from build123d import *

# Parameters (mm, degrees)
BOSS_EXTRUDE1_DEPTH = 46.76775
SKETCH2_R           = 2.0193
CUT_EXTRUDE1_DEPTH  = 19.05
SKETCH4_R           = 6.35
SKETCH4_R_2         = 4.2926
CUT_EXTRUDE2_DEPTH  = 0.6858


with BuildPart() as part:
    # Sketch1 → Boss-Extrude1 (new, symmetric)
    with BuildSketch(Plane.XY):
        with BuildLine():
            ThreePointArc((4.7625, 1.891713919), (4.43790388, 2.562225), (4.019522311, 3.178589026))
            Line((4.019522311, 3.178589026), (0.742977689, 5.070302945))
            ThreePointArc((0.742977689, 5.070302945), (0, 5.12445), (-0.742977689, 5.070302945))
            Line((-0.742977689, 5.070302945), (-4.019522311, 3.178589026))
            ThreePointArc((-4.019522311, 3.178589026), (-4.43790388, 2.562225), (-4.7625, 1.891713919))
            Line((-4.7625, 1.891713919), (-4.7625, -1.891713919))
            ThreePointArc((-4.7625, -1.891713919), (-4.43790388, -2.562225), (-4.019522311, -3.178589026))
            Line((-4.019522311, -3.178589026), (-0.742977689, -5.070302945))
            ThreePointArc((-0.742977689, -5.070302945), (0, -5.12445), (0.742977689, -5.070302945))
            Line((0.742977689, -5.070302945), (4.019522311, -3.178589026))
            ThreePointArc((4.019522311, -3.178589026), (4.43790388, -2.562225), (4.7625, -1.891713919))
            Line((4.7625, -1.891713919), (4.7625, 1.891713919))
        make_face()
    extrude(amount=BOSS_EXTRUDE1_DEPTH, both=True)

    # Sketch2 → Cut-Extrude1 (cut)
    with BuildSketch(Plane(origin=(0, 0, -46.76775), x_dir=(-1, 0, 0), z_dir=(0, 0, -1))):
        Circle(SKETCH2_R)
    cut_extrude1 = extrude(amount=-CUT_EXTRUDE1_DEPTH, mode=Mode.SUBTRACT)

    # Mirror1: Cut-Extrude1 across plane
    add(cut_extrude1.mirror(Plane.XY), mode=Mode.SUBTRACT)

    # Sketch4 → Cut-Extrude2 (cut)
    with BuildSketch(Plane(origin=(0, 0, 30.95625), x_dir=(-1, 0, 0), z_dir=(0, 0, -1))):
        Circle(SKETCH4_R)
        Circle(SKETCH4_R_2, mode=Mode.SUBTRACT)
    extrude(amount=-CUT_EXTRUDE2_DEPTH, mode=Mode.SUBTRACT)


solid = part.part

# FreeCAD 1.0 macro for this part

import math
import FreeCAD as App
import Part
import Sketcher
from FreeCAD import Vector
Q = App.Units.Quantity

doc = App.newDocument("Part")
body = doc.addObject("PartDesign::Body", "Body")

# Sketch on XY plane
sketch1 = doc.addObject("Sketcher::SketchObject", "Sketch")
body.addObject(sketch1)
sketch1.AttachmentSupport = (doc.XY_Plane, [""])
sketch1.MapMode = "FlatFace"
sketch1.addGeometry(Part.ArcOfCircle(Part.Circle(Vector(0, 0, 0), Vector(0, 0, 1), 5.1), math.radians(21.66), math.radians(38.34)), False)
sketch1.addGeometry(Part.LineSegment(Vector(4, 3.2, 0), Vector(0.7, 5.1, 0)), False)
sketch1.addGeometry(Part.ArcOfCircle(Part.Circle(Vector(0, 0, 0), Vector(0, 0, 1), 5.1), math.radians(81.66), math.radians(98.34)), False)
sketch1.addGeometry(Part.LineSegment(Vector(-0.7, 5.1, 0), Vector(-4, 3.2, 0)), False)
sketch1.addGeometry(Part.ArcOfCircle(Part.Circle(Vector(0, 0, 0), Vector(0, 0, 1), 5.1), math.radians(141.66), math.radians(158.34)), False)
sketch1.addGeometry(Part.LineSegment(Vector(-4.8, 1.9, 0), Vector(-4.8, -1.9, 0)), False)
sketch1.addGeometry(Part.ArcOfCircle(Part.Circle(Vector(0, 0, 0), Vector(0, 0, 1), 5.1), math.radians(-158.34), math.radians(-141.66)), False)
sketch1.addGeometry(Part.LineSegment(Vector(-4, -3.2, 0), Vector(-0.7, -5.1, 0)), False)
sketch1.addGeometry(Part.ArcOfCircle(Part.Circle(Vector(0, 0, 0), Vector(0, 0, 1), 5.1), math.radians(-98.34), math.radians(-81.66)), False)
sketch1.addGeometry(Part.LineSegment(Vector(0.7, -5.1, 0), Vector(4, -3.2, 0)), False)
sketch1.addGeometry(Part.ArcOfCircle(Part.Circle(Vector(0, 0, 0), Vector(0, 0, 1), 5.1), math.radians(-38.34), math.radians(-21.66)), False)
sketch1.addGeometry(Part.LineSegment(Vector(4.8, -1.9, 0), Vector(4.8, 1.9, 0)), False)
sketch1.addConstraint(Sketcher.Constraint("Coincident", 0, 2, 1, 1))
sketch1.addConstraint(Sketcher.Constraint("Coincident", 1, 2, 2, 1))
sketch1.addConstraint(Sketcher.Constraint("Coincident", 2, 2, 3, 1))
sketch1.addConstraint(Sketcher.Constraint("Coincident", 3, 2, 4, 1))
sketch1.addConstraint(Sketcher.Constraint("Coincident", 4, 2, 5, 1))
sketch1.addConstraint(Sketcher.Constraint("Coincident", 5, 2, 6, 1))
sketch1.addConstraint(Sketcher.Constraint("Coincident", 6, 2, 7, 1))
sketch1.addConstraint(Sketcher.Constraint("Coincident", 7, 2, 8, 1))
sketch1.addConstraint(Sketcher.Constraint("Coincident", 8, 2, 9, 1))
sketch1.addConstraint(Sketcher.Constraint("Coincident", 9, 2, 10, 1))
sketch1.addConstraint(Sketcher.Constraint("Coincident", 10, 2, 11, 1))
sketch1.addConstraint(Sketcher.Constraint("Coincident", 11, 2, 0, 1))
sketch1.addConstraint(Sketcher.Constraint("Vertical", 5))
sketch1.addConstraint(Sketcher.Constraint("Vertical", 11))
sketch1.addConstraint(Sketcher.Constraint("Coincident", 0, 3, -1, 1))
sketch1.addConstraint(Sketcher.Constraint("Coincident", 2, 3, -1, 1))
sketch1.addConstraint(Sketcher.Constraint("Coincident", 4, 3, -1, 1))
sketch1.addConstraint(Sketcher.Constraint("Coincident", 6, 3, -1, 1))
sketch1.addConstraint(Sketcher.Constraint("Coincident", 8, 3, -1, 1))
sketch1.addConstraint(Sketcher.Constraint("Coincident", 10, 3, -1, 1))
sketch1.addConstraint(Sketcher.Constraint("Equal", 0, 2))
sketch1.addConstraint(Sketcher.Constraint("Equal", 2, 4))
sketch1.addConstraint(Sketcher.Constraint("Equal", 4, 6))
sketch1.addConstraint(Sketcher.Constraint("Equal", 6, 8))
sketch1.addConstraint(Sketcher.Constraint("Equal", 8, 10))
sketch1.addConstraint(Sketcher.Constraint("Parallel", 1, 7))
sketch1.addConstraint(Sketcher.Constraint("Parallel", 3, 9))
sketch1.addConstraint(Sketcher.Constraint("Horizontal", 1, 2, 2, 2))
sketch1.addConstraint(Sketcher.Constraint("Horizontal", 0, 2, 3, 2))
sketch1.addConstraint(Sketcher.Constraint("Horizontal", 7, 2, 8, 2))
sketch1.addConstraint(Sketcher.Constraint("Horizontal", 5, 2, 10, 2))
sketch1.addConstraint(Sketcher.Constraint("Vertical", 3, 2, 6, 2))
sketch1.addConstraint(Sketcher.Constraint("Angle", 1, Q("150 deg")))
sketch1.addConstraint(Sketcher.Constraint("DistanceX", 4, 2, -1, 1, Q("0.1875 in")))
sketch1.addConstraint(Sketcher.Constraint("Radius", 0, Q("5.12445 mm")))
sketch1.addConstraint(Sketcher.Constraint("DistanceX", 2, 2, 0, 2, Q("0.1875 in")))
pad1 = doc.addObject("PartDesign::Pad", "Pad")
body.addObject(pad1)
pad1.Profile = sketch1
pad1.Length = Q("3.6825 in")
pad1.Midplane = True

# Sketch on XY plane
sketch2 = doc.addObject("Sketcher::SketchObject", "Sketch001")
body.addObject(sketch2)
sketch2.AttachmentSupport = (doc.XY_Plane, [""])
sketch2.MapMode = "FlatFace"
sketch2.AttachmentOffset = App.Placement(Vector(0, 0, -46.76775), App.Rotation())
sketch2.addGeometry(Part.Circle(Vector(0, 0, 0), Vector(0, 0, 1), 2), False)
sketch2.addConstraint(Sketcher.Constraint("Coincident", 0, 3, -1, 1))
sketch2.addConstraint(Sketcher.Constraint("Diameter", 0, Q("0.159 in")))
pocket1 = doc.addObject("PartDesign::Pocket", "Pocket")
body.addObject(pocket1)
pocket1.Profile = sketch2
pocket1.Length = Q("0.75 in")
pocket1.Reversed = True
doc.recompute()

mirrored = doc.addObject("PartDesign::Mirrored", "Mirrored")
body.addObject(mirrored)
mirrored.Originals = [pocket1]
mirrored.MirrorPlane = (doc.XY_Plane, [""])
body.Tip = mirrored

# Sketch on XY plane
sketch3 = doc.addObject("Sketcher::SketchObject", "Sketch002")
body.addObject(sketch3)
sketch3.AttachmentSupport = (doc.XY_Plane, [""])
sketch3.MapMode = "FlatFace"
sketch3.AttachmentOffset = App.Placement(Vector(0, 0, 1.21875 * 25.4), App.Rotation())
sketch3.addGeometry(Part.Circle(Vector(0, 0, 0), Vector(0, 0, 1), 6.3), False)
sketch3.addGeometry(Part.Circle(Vector(0, 0, 0), Vector(0, 0, 1), 4.3), False)
sketch3.addConstraint(Sketcher.Constraint("Coincident", 0, 3, -1, 1))
sketch3.addConstraint(Sketcher.Constraint("Coincident", 1, 3, -1, 1))
sketch3.addConstraint(Sketcher.Constraint("Diameter", 0, Q("0.5 in")))
sketch3.addConstraint(Sketcher.Constraint("Diameter", 1, Q("0.338 in")))
pocket2 = doc.addObject("PartDesign::Pocket", "Pocket001")
body.addObject(pocket2)
pocket2.Profile = sketch3
pocket2.Length = Q("0.027 in")
pocket2.Reversed = True

doc.recompute()
